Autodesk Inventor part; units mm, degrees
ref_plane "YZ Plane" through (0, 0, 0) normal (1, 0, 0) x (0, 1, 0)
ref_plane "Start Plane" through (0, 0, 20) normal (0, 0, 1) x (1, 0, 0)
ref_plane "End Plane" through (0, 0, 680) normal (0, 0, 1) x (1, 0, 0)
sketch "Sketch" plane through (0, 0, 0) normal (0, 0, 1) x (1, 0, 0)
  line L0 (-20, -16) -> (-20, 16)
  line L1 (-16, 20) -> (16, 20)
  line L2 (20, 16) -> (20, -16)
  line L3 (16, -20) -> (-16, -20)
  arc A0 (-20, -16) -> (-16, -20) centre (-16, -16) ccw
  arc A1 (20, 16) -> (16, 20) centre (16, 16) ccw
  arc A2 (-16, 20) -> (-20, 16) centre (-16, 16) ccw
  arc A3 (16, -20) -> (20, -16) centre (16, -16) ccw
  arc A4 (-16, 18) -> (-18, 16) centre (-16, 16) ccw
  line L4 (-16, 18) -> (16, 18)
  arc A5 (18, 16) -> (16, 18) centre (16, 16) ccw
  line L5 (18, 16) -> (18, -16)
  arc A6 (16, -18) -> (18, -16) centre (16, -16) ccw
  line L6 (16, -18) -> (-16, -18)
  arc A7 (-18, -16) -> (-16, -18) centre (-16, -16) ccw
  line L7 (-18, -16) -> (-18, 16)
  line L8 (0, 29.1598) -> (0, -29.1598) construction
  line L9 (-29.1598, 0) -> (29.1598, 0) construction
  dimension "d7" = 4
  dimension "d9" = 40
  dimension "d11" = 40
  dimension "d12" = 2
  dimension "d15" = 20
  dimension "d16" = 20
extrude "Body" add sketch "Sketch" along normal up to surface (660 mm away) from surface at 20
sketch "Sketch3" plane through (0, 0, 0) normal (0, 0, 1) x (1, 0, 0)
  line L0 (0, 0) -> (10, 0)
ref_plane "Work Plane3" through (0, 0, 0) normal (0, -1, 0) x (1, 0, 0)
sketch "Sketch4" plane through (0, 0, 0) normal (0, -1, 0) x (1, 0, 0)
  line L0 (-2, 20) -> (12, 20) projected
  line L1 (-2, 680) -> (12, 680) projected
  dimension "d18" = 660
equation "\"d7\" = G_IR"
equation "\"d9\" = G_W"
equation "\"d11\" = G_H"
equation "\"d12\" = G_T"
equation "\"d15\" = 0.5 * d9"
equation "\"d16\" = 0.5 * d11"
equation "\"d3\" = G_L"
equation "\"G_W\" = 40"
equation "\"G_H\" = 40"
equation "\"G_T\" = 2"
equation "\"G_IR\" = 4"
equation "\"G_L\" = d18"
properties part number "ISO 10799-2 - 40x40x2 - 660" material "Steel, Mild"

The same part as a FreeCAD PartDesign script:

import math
import FreeCAD as App
import Part
import Sketcher
from FreeCAD import Vector
Q = App.Units.Quantity

doc = App.newDocument("Part")
body = doc.addObject("PartDesign::Body", "Body")

# Sketch on XY plane
sketch1 = body.newObject("Sketcher::SketchObject", "Sketch")
sketch1.AttachmentSupport = (doc.getObject("XY_Plane"), [""])
sketch1.MapMode = "FlatFace"
sketch1.AttachmentOffset = App.Placement(Vector(0, 0, 20), App.Rotation())
sketch1.addGeometry([
    Part.LineSegment(Vector(-20, 16, 0), Vector(-20, -16, 0)),  # 0
    Part.ArcOfCircle(Part.Circle(Vector(-16, -16, 0), Vector(0, 0, 1), 4), math.radians(180), math.radians(270)),  # 1
    Part.LineSegment(Vector(-16, -20, 0), Vector(16, -20, 0)),  # 2
    Part.ArcOfCircle(Part.Circle(Vector(16, -16, 0), Vector(0, 0, 1), 4), math.radians(-90), math.radians(0)),  # 3
    Part.LineSegment(Vector(20, -16, 0), Vector(20, 16, 0)),  # 4
    Part.ArcOfCircle(Part.Circle(Vector(16, 16, 0), Vector(0, 0, 1), 4), math.radians(0), math.radians(90)),  # 5
    Part.LineSegment(Vector(16, 20, 0), Vector(-16, 20, 0)),  # 6
    Part.ArcOfCircle(Part.Circle(Vector(-16, 16, 0), Vector(0, 0, 1), 4), math.radians(90), math.radians(180)),  # 7
    Part.ArcOfCircle(Part.Circle(Vector(-16, 16, 0), Vector(0, 0, 1), 2), math.radians(90), math.radians(180)),  # 8
    Part.LineSegment(Vector(-16, 18, 0), Vector(16, 18, 0)),  # 9
    Part.ArcOfCircle(Part.Circle(Vector(16, 16, 0), Vector(0, 0, 1), 2), math.radians(0), math.radians(90)),  # 10
    Part.LineSegment(Vector(18, 16, 0), Vector(18, -16, 0)),  # 11
    Part.ArcOfCircle(Part.Circle(Vector(16, -16, 0), Vector(0, 0, 1), 2), math.radians(-90), math.radians(0)),  # 12
    Part.LineSegment(Vector(16, -18, 0), Vector(-16, -18, 0)),  # 13
    Part.ArcOfCircle(Part.Circle(Vector(-16, -16, 0), Vector(0, 0, 1), 2), math.radians(180), math.radians(270)),  # 14
    Part.LineSegment(Vector(-18, -16, 0), Vector(-18, 16, 0)),  # 15
], False)
sketch1.addConstraint([
    Sketcher.Constraint("Tangent", 0, 2, 1, 1),
    Sketcher.Constraint("Tangent", 1, 2, 2, 1),
    Sketcher.Constraint("Tangent", 2, 2, 3, 1),
    Sketcher.Constraint("Tangent", 3, 2, 4, 1),
    Sketcher.Constraint("Tangent", 4, 2, 5, 1),
    Sketcher.Constraint("Tangent", 5, 2, 6, 1),
    Sketcher.Constraint("Tangent", 6, 2, 7, 1),
    Sketcher.Constraint("Tangent", 7, 2, 0, 1),
    Sketcher.Constraint("Tangent", 8, 1, 9, 1),
    Sketcher.Constraint("Tangent", 9, 2, 10, 2),
    Sketcher.Constraint("Tangent", 10, 1, 11, 1),
    Sketcher.Constraint("Tangent", 11, 2, 12, 2),
    Sketcher.Constraint("Tangent", 12, 1, 13, 1),
    Sketcher.Constraint("Tangent", 13, 2, 14, 2),
    Sketcher.Constraint("Tangent", 14, 1, 15, 1),
    Sketcher.Constraint("Tangent", 15, 2, 8, 2),
    Sketcher.Constraint("Vertical", 0),
    Sketcher.Constraint("Horizontal", 2),
    Sketcher.Constraint("Vertical", 4),
    Sketcher.Constraint("Horizontal", 6),
    Sketcher.Constraint("Horizontal", 9),
    Sketcher.Constraint("Vertical", 11),
    Sketcher.Constraint("Horizontal", 13),
    Sketcher.Constraint("Vertical", 15),
    Sketcher.Constraint("Coincident", 8, 3, 7, 3),
    Sketcher.Constraint("Coincident", 10, 3, 5, 3),
    Sketcher.Constraint("Coincident", 12, 3, 3, 3),
    Sketcher.Constraint("Equal", 1, 3),
    Sketcher.Constraint("Equal", 3, 5),
    Sketcher.Constraint("Equal", 5, 7),
    Sketcher.Constraint("Equal", 12, 14),
    Sketcher.Constraint("Symmetric", 1, 3, 5, 3, -1, 1),
    Sketcher.Constraint("Equal", 13, 0),
    Sketcher.Constraint("Radius", 1, Q("4 mm")),
    Sketcher.Constraint("Radius", 8, Q("2 mm")),
    Sketcher.Constraint("DistanceX", 0, 2, -1, 1, Q("20 mm")),
])
pad1 = body.newObject("PartDesign::Pad", "Pad")
pad1.Profile = sketch1
pad1.Length = 660

doc.recompute()
